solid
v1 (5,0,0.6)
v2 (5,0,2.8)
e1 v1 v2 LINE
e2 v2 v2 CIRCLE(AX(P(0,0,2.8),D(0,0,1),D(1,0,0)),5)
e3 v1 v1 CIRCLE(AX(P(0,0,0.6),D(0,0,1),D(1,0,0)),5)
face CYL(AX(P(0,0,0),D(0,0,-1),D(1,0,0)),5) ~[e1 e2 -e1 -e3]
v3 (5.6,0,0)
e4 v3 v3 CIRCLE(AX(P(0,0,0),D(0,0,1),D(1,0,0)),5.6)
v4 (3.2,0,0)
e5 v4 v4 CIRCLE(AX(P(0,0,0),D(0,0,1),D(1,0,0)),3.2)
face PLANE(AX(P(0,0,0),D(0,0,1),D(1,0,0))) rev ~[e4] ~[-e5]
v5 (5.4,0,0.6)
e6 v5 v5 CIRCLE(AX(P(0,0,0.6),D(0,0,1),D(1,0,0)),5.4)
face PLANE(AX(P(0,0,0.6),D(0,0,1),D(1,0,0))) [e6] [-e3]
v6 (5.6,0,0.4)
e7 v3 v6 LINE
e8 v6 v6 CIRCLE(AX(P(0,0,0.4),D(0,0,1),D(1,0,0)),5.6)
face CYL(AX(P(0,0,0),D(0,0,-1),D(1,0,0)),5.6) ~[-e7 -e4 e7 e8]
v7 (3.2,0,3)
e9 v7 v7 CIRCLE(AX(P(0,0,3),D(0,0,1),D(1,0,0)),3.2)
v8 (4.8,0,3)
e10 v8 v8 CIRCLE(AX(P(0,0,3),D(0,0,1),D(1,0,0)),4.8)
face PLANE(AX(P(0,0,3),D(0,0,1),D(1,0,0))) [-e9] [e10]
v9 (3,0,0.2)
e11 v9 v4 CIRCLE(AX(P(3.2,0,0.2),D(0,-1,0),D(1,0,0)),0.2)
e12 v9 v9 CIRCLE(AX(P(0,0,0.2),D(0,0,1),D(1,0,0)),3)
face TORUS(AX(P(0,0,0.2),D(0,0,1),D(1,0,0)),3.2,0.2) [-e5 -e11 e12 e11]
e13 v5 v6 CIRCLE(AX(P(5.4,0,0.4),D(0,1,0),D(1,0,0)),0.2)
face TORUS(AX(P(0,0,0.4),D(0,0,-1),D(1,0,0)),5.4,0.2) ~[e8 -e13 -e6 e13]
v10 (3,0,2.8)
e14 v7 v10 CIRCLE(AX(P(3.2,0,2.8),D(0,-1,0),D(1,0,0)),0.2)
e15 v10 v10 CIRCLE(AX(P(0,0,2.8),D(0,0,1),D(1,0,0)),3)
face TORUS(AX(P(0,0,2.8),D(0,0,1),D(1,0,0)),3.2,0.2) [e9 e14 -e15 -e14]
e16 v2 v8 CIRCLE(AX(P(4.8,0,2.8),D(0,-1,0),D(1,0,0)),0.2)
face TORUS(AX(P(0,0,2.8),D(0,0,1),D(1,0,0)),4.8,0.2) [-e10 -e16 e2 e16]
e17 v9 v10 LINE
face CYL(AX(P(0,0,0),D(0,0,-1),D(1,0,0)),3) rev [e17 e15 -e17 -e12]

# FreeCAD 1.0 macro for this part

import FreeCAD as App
import Part
import Sketcher

V = App.Vector


def edges_at(feature, points):
    """Names of the edges that pass closest to the given points."""
    edges = feature.Shape.Edges
    near = lambda p: min(range(len(edges)), key=lambda i: edges[i].distToShape(Part.Vertex(*p))[0])
    return sorted({f"Edge{near(p) + 1}" for p in points})

doc = App.newDocument("Part")
body = doc.addObject("PartDesign::Body", "Body")

# Sketch on XY plane
sketch1 = body.newObject("Sketcher::SketchObject", "Sketch")
sketch1.AttachmentSupport = (doc.getObject("XY_Plane"), [""])
sketch1.MapMode = "FlatFace"
sketch1.addGeometry([
    Part.Circle(V(0, 0, 0), V(0, 0, 1), 5),
    Part.Circle(V(0, 0, 0), V(0, 0, 1), 3),
], False)
sketch1.addConstraint([
    Sketcher.Constraint("Coincident", 0, 3, -1, 1),
    Sketcher.Constraint("Coincident", 1, 3, -1, 1),
    Sketcher.Constraint("Diameter", 0, 10.0),
    Sketcher.Constraint("Diameter", 1, 6.0),
])
pad1 = body.newObject("PartDesign::Pad", "Pad")
pad1.Profile = sketch1
pad1.Length = 3

# Sketch on XY plane
sketch2 = body.newObject("Sketcher::SketchObject", "Sketch001")
sketch2.AttachmentSupport = (doc.getObject("XY_Plane"), [""])
sketch2.MapMode = "FlatFace"
sketch2.addGeometry([
    Part.Circle(V(0, 0, 0), V(0, 0, 1), 5.6),
    Part.Circle(V(0, 0, 0), V(0, 0, 1), 5),
], False)
sketch2.addConstraint([
    Sketcher.Constraint("Coincident", 0, 3, -1, 1),
    Sketcher.Constraint("Coincident", 1, 3, -1, 1),
    Sketcher.Constraint("Diameter", 1, 10.0),
    Sketcher.Constraint("Diameter", 0, 11.2),
])
pad2 = body.newObject("PartDesign::Pad", "Pad001")
pad2.Profile = sketch2
pad2.Length = 0.6
doc.recompute()

fillet = body.newObject("PartDesign::Fillet", "Fillet")
fillet.Base = (pad2, edges_at(pad2, [
    (-5.6, 0, 0.6),
    (-5, 0, 3),
    (-3, 0, 3),
    (-3, 0, 0),
]))
fillet.Radius = 0.2

doc.recompute()
